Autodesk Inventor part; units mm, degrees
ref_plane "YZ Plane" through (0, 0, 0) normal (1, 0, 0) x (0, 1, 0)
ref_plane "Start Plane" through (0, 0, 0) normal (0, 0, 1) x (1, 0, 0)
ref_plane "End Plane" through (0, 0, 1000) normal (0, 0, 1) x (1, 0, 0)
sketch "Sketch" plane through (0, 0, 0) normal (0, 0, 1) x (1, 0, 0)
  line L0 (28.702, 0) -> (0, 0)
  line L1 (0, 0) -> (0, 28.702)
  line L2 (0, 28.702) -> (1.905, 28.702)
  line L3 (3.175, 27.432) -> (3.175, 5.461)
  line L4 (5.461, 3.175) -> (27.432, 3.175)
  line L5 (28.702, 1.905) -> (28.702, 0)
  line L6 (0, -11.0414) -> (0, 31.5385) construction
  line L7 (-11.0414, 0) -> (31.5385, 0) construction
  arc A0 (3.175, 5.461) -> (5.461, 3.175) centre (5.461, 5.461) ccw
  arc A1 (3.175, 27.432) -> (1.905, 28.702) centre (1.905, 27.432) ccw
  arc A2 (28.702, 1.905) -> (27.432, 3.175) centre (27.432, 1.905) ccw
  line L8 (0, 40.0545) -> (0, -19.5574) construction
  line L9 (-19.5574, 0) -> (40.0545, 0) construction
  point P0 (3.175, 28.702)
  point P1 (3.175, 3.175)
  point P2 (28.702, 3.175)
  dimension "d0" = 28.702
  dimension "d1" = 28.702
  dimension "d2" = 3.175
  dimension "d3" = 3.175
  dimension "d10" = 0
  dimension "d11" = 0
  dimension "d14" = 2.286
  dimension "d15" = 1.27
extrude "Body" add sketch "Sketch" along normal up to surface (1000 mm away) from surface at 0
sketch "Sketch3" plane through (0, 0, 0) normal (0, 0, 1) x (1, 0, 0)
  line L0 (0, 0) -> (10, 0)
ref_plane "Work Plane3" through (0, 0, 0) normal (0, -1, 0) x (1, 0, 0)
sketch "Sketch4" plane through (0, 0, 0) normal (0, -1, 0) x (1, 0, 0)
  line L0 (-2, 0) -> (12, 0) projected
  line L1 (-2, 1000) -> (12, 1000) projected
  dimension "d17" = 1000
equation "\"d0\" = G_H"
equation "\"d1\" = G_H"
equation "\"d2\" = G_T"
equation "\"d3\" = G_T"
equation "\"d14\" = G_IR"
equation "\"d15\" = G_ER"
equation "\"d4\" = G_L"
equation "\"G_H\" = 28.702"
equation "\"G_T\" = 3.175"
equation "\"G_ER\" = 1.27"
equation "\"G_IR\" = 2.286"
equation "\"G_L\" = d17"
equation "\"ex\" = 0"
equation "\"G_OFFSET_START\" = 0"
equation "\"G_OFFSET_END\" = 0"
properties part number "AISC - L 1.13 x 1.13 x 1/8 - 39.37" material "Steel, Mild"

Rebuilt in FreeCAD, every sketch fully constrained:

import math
import FreeCAD as App
import Part
import Sketcher
Q = App.Units.Quantity

doc = App.newDocument("Part")
params = doc.addObject("Spreadsheet::Sheet", "Params")
for row, (alias, value) in enumerate([
    ("sketch1_radius", "0.05 in"),
    ("sketch1_radius2", "0.09 in"),
    ("sketch1_width", "1.13 in"),
    ("pad1_length", "1000 mm"),
], start=1):
    params.set(f"A{row}", alias)
    params.set(f"B{row}", "=" + value)
    params.setAlias(f"B{row}", alias)

body = doc.addObject("PartDesign::Body", "Body")

sketch1 = body.newObject("Sketcher::SketchObject", "Sketch")
sketch1.AttachmentSupport = (doc.getObject("XY_Plane"), [""])
sketch1.MapMode = "FlatFace"
sketch1.addGeometry(Part.LineSegment(App.Vector(0, 0, 0), App.Vector(28.7, 0, 0)), False)
sketch1.addGeometry(Part.LineSegment(App.Vector(28.7, 0, 0), App.Vector(28.7, 1.9, 0)), False)
sketch1.addGeometry(Part.ArcOfCircle(Part.Circle(App.Vector(27.4, 1.9, 0), App.Vector(0, 0, 1), 1.3), math.radians(0), math.radians(90)), False)
sketch1.addGeometry(Part.LineSegment(App.Vector(27.4, 3.2, 0), App.Vector(5.5, 3.2, 0)), False)
sketch1.addGeometry(Part.ArcOfCircle(Part.Circle(App.Vector(5.5, 5.5, 0), App.Vector(0, 0, 1), 2.3), math.radians(180), math.radians(270)), False)
sketch1.addGeometry(Part.LineSegment(App.Vector(3.2, 5.5, 0), App.Vector(3.2, 27.4, 0)), False)
sketch1.addGeometry(Part.ArcOfCircle(Part.Circle(App.Vector(1.9, 27.4, 0), App.Vector(0, 0, 1), 1.3), math.radians(0), math.radians(90)), False)
sketch1.addGeometry(Part.LineSegment(App.Vector(1.9, 28.7, 0), App.Vector(0, 28.7, 0)), False)
sketch1.addGeometry(Part.LineSegment(App.Vector(0, 28.7, 0), App.Vector(0, 0, 0)), False)
sketch1.addConstraint(Sketcher.Constraint("Coincident", 0, 2, 1, 1))
sketch1.addConstraint(Sketcher.Constraint("Tangent", 1, 2, 2, 1))
sketch1.addConstraint(Sketcher.Constraint("Tangent", 2, 2, 3, 1))
sketch1.addConstraint(Sketcher.Constraint("Tangent", 3, 2, 4, 2))
sketch1.addConstraint(Sketcher.Constraint("Tangent", 4, 1, 5, 1))
sketch1.addConstraint(Sketcher.Constraint("Tangent", 5, 2, 6, 1))
sketch1.addConstraint(Sketcher.Constraint("Tangent", 6, 2, 7, 1))
sketch1.addConstraint(Sketcher.Constraint("Coincident", 7, 2, 8, 1))
sketch1.addConstraint(Sketcher.Constraint("Coincident", 8, 2, 0, 1))
sketch1.addConstraint(Sketcher.Constraint("Horizontal", 0))
sketch1.addConstraint(Sketcher.Constraint("Vertical", 1))
sketch1.addConstraint(Sketcher.Constraint("Horizontal", 3))
sketch1.addConstraint(Sketcher.Constraint("Vertical", 5))
sketch1.addConstraint(Sketcher.Constraint("Horizontal", 7))
sketch1.addConstraint(Sketcher.Constraint("Vertical", 8))
sketch1.addConstraint(Sketcher.Constraint("Coincident", 8, 2, -1, 1))
sketch1.addConstraint(Sketcher.Constraint("Equal", 2, 6))
sketch1.addConstraint(Sketcher.Constraint("Equal", 7, 1))
sketch1.addConstraint(Sketcher.Constraint("Equal", 3, 5))
sketch1.addConstraint(Sketcher.Constraint("Radius", 2, Q("0.05 in")))
sketch1.addConstraint(Sketcher.Constraint("Radius", 4, Q("0.09 in")))
sketch1.addConstraint(Sketcher.Constraint("DistanceX", 0, 1, 0, 2, Q("1.13 in")))
sketch1.addConstraint(Sketcher.Constraint("DistanceY", -1, 1, 2, 2, Q("0.125 in")))
sketch1.setExpression("Constraints[19]", "Params.sketch1_radius")
sketch1.setExpression("Constraints[20]", "Params.sketch1_radius2")
sketch1.setExpression("Constraints[21]", "Params.sketch1_width")
pad1 = body.newObject("PartDesign::Pad", "Pad")
pad1.Profile = sketch1
pad1.setExpression("Length", "Params.pad1_length")

doc.recompute()
